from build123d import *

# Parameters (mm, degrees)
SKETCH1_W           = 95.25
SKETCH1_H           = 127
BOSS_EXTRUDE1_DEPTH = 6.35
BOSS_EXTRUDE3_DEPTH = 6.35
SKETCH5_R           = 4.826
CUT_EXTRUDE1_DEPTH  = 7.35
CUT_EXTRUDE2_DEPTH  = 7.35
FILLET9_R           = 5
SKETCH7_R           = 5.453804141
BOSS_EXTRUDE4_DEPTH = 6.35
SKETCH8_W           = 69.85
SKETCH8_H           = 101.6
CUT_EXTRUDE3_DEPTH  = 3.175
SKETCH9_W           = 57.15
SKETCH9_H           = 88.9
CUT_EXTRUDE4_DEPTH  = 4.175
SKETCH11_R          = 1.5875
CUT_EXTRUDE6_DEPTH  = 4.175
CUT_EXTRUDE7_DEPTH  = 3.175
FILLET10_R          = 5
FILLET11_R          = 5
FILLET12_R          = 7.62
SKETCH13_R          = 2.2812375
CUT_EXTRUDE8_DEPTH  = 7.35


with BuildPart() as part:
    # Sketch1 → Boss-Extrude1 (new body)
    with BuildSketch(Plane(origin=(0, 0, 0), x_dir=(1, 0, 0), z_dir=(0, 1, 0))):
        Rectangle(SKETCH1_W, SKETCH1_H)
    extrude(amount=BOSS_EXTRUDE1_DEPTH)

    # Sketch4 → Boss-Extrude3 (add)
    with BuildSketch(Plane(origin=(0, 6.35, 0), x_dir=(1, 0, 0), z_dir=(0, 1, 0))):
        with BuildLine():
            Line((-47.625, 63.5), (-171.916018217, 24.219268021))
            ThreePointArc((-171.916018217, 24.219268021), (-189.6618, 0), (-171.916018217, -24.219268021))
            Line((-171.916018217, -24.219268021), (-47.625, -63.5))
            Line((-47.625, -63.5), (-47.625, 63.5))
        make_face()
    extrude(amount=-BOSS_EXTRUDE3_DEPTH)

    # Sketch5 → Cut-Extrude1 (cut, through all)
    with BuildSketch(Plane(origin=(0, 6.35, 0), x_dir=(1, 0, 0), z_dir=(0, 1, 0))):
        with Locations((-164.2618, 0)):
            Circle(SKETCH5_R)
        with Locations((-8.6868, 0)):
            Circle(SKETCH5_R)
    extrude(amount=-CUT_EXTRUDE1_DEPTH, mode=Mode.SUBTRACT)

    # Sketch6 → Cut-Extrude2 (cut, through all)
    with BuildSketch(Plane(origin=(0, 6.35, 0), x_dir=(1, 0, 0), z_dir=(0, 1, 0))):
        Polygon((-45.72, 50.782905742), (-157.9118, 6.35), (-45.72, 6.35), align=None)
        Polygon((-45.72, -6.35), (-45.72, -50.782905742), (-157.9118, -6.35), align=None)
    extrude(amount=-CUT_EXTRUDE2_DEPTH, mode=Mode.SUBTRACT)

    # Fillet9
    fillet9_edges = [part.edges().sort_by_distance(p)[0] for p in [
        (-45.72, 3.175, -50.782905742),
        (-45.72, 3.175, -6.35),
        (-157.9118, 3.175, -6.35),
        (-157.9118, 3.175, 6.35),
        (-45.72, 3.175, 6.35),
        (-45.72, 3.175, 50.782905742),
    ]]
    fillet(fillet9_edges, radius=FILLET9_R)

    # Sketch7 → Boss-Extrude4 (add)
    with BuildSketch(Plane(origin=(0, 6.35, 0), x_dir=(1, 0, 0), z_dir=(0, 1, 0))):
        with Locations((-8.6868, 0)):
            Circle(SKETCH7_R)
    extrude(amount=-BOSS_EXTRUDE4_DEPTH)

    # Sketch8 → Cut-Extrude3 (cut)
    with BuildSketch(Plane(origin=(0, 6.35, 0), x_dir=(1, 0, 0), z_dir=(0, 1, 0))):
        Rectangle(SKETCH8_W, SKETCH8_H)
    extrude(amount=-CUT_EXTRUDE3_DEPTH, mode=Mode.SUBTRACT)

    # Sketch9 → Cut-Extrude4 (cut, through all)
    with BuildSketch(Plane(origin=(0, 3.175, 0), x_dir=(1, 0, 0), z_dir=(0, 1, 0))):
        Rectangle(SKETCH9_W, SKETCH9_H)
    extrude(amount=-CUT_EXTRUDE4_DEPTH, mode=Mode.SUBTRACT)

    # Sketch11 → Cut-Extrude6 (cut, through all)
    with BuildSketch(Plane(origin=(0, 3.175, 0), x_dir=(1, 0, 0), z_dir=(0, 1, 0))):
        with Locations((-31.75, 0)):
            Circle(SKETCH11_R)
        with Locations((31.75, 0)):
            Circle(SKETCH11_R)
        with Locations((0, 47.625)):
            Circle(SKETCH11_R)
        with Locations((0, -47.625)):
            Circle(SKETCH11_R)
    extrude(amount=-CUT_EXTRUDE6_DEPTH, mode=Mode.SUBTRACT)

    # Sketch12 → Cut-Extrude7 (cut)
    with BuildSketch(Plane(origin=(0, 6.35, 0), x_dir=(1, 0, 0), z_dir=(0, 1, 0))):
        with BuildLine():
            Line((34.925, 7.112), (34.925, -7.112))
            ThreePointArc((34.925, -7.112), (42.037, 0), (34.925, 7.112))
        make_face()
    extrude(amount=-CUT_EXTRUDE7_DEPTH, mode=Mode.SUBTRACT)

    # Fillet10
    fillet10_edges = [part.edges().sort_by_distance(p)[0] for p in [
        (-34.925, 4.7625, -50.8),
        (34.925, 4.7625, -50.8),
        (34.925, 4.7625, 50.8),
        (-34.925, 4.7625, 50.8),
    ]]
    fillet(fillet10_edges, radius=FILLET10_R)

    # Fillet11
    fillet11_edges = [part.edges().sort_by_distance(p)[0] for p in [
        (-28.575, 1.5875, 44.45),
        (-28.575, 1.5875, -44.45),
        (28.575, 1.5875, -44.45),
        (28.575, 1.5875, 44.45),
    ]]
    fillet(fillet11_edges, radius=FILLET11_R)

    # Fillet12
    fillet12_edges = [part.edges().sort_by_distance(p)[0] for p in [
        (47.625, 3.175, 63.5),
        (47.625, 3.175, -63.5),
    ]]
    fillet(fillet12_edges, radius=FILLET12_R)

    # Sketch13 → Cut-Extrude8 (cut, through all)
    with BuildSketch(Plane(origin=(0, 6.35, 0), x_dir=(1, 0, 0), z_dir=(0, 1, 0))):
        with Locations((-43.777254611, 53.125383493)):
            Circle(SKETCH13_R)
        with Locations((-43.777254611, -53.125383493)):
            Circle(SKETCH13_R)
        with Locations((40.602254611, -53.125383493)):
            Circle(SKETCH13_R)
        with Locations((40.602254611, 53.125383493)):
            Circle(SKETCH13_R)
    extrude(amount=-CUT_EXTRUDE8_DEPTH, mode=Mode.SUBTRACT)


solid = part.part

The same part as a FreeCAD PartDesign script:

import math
import FreeCAD as App
import Part
import Sketcher
Q = App.Units.Quantity


def edges_at(feature, points):
    """Names of the edges that pass closest to the given points."""
    edges = feature.Shape.Edges
    near = lambda p: min(range(len(edges)), key=lambda i: edges[i].distToShape(Part.Vertex(*p))[0])
    return sorted({f"Edge{near(p) + 1}" for p in points})

doc = App.newDocument("Part")
body = doc.addObject("PartDesign::Body", "Body")

sketch1 = doc.addObject("Sketcher::SketchObject", "Sketch")
body.addObject(sketch1)
sketch1.AttachmentSupport = (doc.XZ_Plane, [""])
sketch1.MapMode = "FlatFace"
sketch1.addGeometry([
    Part.LineSegment(App.Vector(-47.625, -63.5, 0), App.Vector(-47.625, 63.5, 0)),
    Part.LineSegment(App.Vector(-47.625, 63.5, 0), App.Vector(47.625, 63.5, 0)),
    Part.LineSegment(App.Vector(47.625, 63.5, 0), App.Vector(47.625, -63.5, 0)),
    Part.LineSegment(App.Vector(47.625, -63.5, 0), App.Vector(-47.625, -63.5, 0)),
], False)
sketch1.addConstraint([
    Sketcher.Constraint("Coincident", 0, 2, 1, 1),
    Sketcher.Constraint("Coincident", 1, 2, 2, 1),
    Sketcher.Constraint("Coincident", 2, 2, 3, 1),
    Sketcher.Constraint("Coincident", 3, 2, 0, 1),
    Sketcher.Constraint("Vertical", 0),
    Sketcher.Constraint("Horizontal", 1),
    Sketcher.Constraint("Vertical", 2),
    Sketcher.Constraint("Horizontal", 3),
    Sketcher.Constraint("Symmetric", 0, 2, 2, 2, -1, 1),
    Sketcher.Constraint("DistanceY", 0, 1, 0, 2, Q("5 in")),
    Sketcher.Constraint("DistanceX", 1, 1, 1, 2, Q("3.75 in")),
])
pad1 = doc.addObject("PartDesign::Pad", "Pad")
body.addObject(pad1)
pad1.Profile = sketch1
pad1.Length = Q("0.25 in")
pad1.Reversed = True

sketch2 = doc.addObject("Sketcher::SketchObject", "Sketch001")
body.addObject(sketch2)
sketch2.AttachmentSupport = (doc.XZ_Plane, [""])
sketch2.MapMode = "FlatFace"
sketch2.AttachmentOffset = App.Placement(App.Vector(0, 0, -0.25 * 25.4), App.Rotation())
sketch2.addGeometry([
    Part.LineSegment(App.Vector(-47.625, -63.5, 0), App.Vector(-171.916018, -24.219268, 0)),
    Part.ArcOfCircle(Part.Circle(App.Vector(-164.2618, 0, 0), App.Vector(0, 0, 1), 25.4), math.radians(107.538535), math.radians(252.461465)),
    Part.LineSegment(App.Vector(-171.916018, 24.219268, 0), App.Vector(-47.625, 63.5, 0)),
    Part.LineSegment(App.Vector(-47.625, 63.5, 0), App.Vector(-47.625, -63.5, 0)),
], False)
sketch2.addConstraint([
    Sketcher.Constraint("Tangent", 0, 2, 1, 2),
    Sketcher.Constraint("Tangent", 1, 1, 2, 1),
    Sketcher.Constraint("Coincident", 2, 2, 3, 1),
    Sketcher.Constraint("Coincident", 3, 2, 0, 1),
    Sketcher.Constraint("Vertical", 3),
    Sketcher.Constraint("Symmetric", 0, 2, 1, 1, -1),
    Sketcher.Constraint("Radius", 1, Q("1 in")),
    Sketcher.Constraint("DistanceY", 3, 2, 3, 1, Q("5 in")),
    Sketcher.Constraint("DistanceX", 1, 3, -1, 1, Q("6.467 in")),
    Sketcher.Constraint("DistanceX", 2, 2, -1, 1, Q("1.875 in")),
])
pad2 = doc.addObject("PartDesign::Pad", "Pad001")
body.addObject(pad2)
pad2.Profile = sketch2
pad2.Length = Q("0.25 in")

sketch3 = doc.addObject("Sketcher::SketchObject", "Sketch002")
body.addObject(sketch3)
sketch3.AttachmentSupport = (doc.XZ_Plane, [""])
sketch3.MapMode = "FlatFace"
sketch3.AttachmentOffset = App.Placement(App.Vector(0, 0, -0.25 * 25.4), App.Rotation())
sketch3.addGeometry([
    Part.Circle(App.Vector(-164.2618, 0, 0), App.Vector(0, 0, 1), 4.826),
    Part.Circle(App.Vector(-8.6868, 0, 0), App.Vector(0, 0, 1), 4.826),
], False)
sketch3.addConstraint([
    Sketcher.Constraint("Equal", 0, 1),
    Sketcher.Constraint("PointOnObject", 0, 3, -1),
    Sketcher.Constraint("PointOnObject", 1, 3, -1),
    Sketcher.Constraint("Diameter", 0, Q("0.38 in")),
    Sketcher.Constraint("DistanceX", 0, 3, -1, 1, Q("6.467 in")),
    Sketcher.Constraint("DistanceX", 1, 3, -1, 1, Q("0.342 in")),
])
pocket1 = doc.addObject("PartDesign::Pocket", "Pocket")
body.addObject(pocket1)
pocket1.Profile = sketch3
pocket1.Type = "ThroughAll"
pocket1.Reversed = True

sketch4 = doc.addObject("Sketcher::SketchObject", "Sketch003")
body.addObject(sketch4)
sketch4.AttachmentSupport = (doc.XZ_Plane, [""])
sketch4.MapMode = "FlatFace"
sketch4.AttachmentOffset = App.Placement(App.Vector(0, 0, -0.25 * 25.4), App.Rotation())
sketch4.addGeometry([
    Part.LineSegment(App.Vector(-45.72, -50.782906, 0), App.Vector(-157.9118, -6.35, 0)),
    Part.LineSegment(App.Vector(-157.9118, -6.35, 0), App.Vector(-45.72, -6.35, 0)),
    Part.LineSegment(App.Vector(-45.72, -6.35, 0), App.Vector(-45.72, -50.782906, 0)),
    Part.LineSegment(App.Vector(-45.72, 50.782906, 0), App.Vector(-45.72, 6.35, 0)),
    Part.LineSegment(App.Vector(-45.72, 6.35, 0), App.Vector(-157.9118, 6.35, 0)),
    Part.LineSegment(App.Vector(-157.9118, 6.35, 0), App.Vector(-45.72, 50.782906, 0)),
], False)
sketch4.addConstraint([
    Sketcher.Constraint("Coincident", 0, 2, 1, 1),
    Sketcher.Constraint("Coincident", 1, 2, 2, 1),
    Sketcher.Constraint("Coincident", 2, 2, 0, 1),
    Sketcher.Constraint("Coincident", 3, 2, 4, 1),
    Sketcher.Constraint("Coincident", 4, 2, 5, 1),
    Sketcher.Constraint("Coincident", 5, 2, 3, 1),
    Sketcher.Constraint("Horizontal", 1),
    Sketcher.Constraint("Vertical", 2),
    Sketcher.Constraint("Vertical", 3),
    Sketcher.Constraint("Horizontal", 4),
    Sketcher.Constraint("Symmetric", 1, 2, 3, 2, -1),
    Sketcher.Constraint("Vertical", 0, 2, 4, 2),
    Sketcher.Constraint("Equal", 2, 3),
    Sketcher.Constraint("DistanceX", 1, 2, -1, 1, Q("1.8 in")),
    Sketcher.Constraint("DistanceY", 1, 2, 3, 2, Q("0.5 in")),
    Sketcher.Constraint("DistanceX", 1, 1, 1, 2, Q("4.417 in")),
    Sketcher.Constraint("Distance", 0, Q("120.670142 mm")),
])
pocket2 = doc.addObject("PartDesign::Pocket", "Pocket001")
body.addObject(pocket2)
pocket2.Profile = sketch4
pocket2.Type = "ThroughAll"
pocket2.Reversed = True
doc.recompute()

fillet = doc.addObject("PartDesign::Fillet", "Fillet")
body.addObject(fillet)
fillet.Base = (pocket2, edges_at(pocket2, [
    (-45.72, 3.175, -50.783),
    (-45.72, 3.175, -6.35),
    (-157.912, 3.175, -6.35),
    (-157.912, 3.175, 6.35),
    (-45.72, 3.175, 6.35),
    (-45.72, 3.175, 50.783),
]))
fillet.Radius = 5

sketch5 = doc.addObject("Sketcher::SketchObject", "Sketch004")
body.addObject(sketch5)
sketch5.AttachmentSupport = (doc.XZ_Plane, [""])
sketch5.MapMode = "FlatFace"
sketch5.AttachmentOffset = App.Placement(App.Vector(0, 0, -0.25 * 25.4), App.Rotation())
sketch5.addGeometry(Part.Circle(App.Vector(-8.6868, 0, 0), App.Vector(0, 0, 1), 5.453804), False)
sketch5.addConstraint([
    Sketcher.Constraint("PointOnObject", 0, 3, -1),
    Sketcher.Constraint("Diameter", 0, Q("10.907608 mm")),
    Sketcher.Constraint("DistanceX", 0, 3, -1, 1, Q("0.342 in")),
])
pad3 = doc.addObject("PartDesign::Pad", "Pad002")
body.addObject(pad3)
pad3.Profile = sketch5
pad3.Length = Q("0.25 in")

sketch6 = doc.addObject("Sketcher::SketchObject", "Sketch005")
body.addObject(sketch6)
sketch6.AttachmentSupport = (doc.XZ_Plane, [""])
sketch6.MapMode = "FlatFace"
sketch6.AttachmentOffset = App.Placement(App.Vector(0, 0, -0.25 * 25.4), App.Rotation())
sketch6.addGeometry([
    Part.LineSegment(App.Vector(-34.925, -50.8, 0), App.Vector(-34.925, 50.8, 0)),
    Part.LineSegment(App.Vector(-34.925, 50.8, 0), App.Vector(34.925, 50.8, 0)),
    Part.LineSegment(App.Vector(34.925, 50.8, 0), App.Vector(34.925, -50.8, 0)),
    Part.LineSegment(App.Vector(34.925, -50.8, 0), App.Vector(-34.925, -50.8, 0)),
], False)
sketch6.addConstraint([
    Sketcher.Constraint("Coincident", 0, 2, 1, 1),
    Sketcher.Constraint("Coincident", 1, 2, 2, 1),
    Sketcher.Constraint("Coincident", 2, 2, 3, 1),
    Sketcher.Constraint("Coincident", 3, 2, 0, 1),
    Sketcher.Constraint("Vertical", 0),
    Sketcher.Constraint("Horizontal", 1),
    Sketcher.Constraint("Vertical", 2),
    Sketcher.Constraint("Horizontal", 3),
    Sketcher.Constraint("Symmetric", 0, 2, 2, 2, -1, 1),
    Sketcher.Constraint("DistanceY", 0, 1, 0, 2, Q("4 in")),
    Sketcher.Constraint("DistanceX", 1, 1, 1, 2, Q("2.75 in")),
])
pocket3 = doc.addObject("PartDesign::Pocket", "Pocket002")
body.addObject(pocket3)
pocket3.Profile = sketch6
pocket3.Length = Q("0.125 in")
pocket3.Reversed = True

sketch7 = doc.addObject("Sketcher::SketchObject", "Sketch006")
body.addObject(sketch7)
sketch7.AttachmentSupport = (doc.XZ_Plane, [""])
sketch7.MapMode = "FlatFace"
sketch7.AttachmentOffset = App.Placement(App.Vector(0, 0, -0.125 * 25.4), App.Rotation())
sketch7.addGeometry([
    Part.LineSegment(App.Vector(-28.575, -44.45, 0), App.Vector(-28.575, 44.45, 0)),
    Part.LineSegment(App.Vector(-28.575, 44.45, 0), App.Vector(28.575, 44.45, 0)),
    Part.LineSegment(App.Vector(28.575, 44.45, 0), App.Vector(28.575, -44.45, 0)),
    Part.LineSegment(App.Vector(28.575, -44.45, 0), App.Vector(-28.575, -44.45, 0)),
], False)
sketch7.addConstraint([
    Sketcher.Constraint("Coincident", 0, 2, 1, 1),
    Sketcher.Constraint("Coincident", 1, 2, 2, 1),
    Sketcher.Constraint("Coincident", 2, 2, 3, 1),
    Sketcher.Constraint("Coincident", 3, 2, 0, 1),
    Sketcher.Constraint("Vertical", 0),
    Sketcher.Constraint("Horizontal", 1),
    Sketcher.Constraint("Vertical", 2),
    Sketcher.Constraint("Horizontal", 3),
    Sketcher.Constraint("Symmetric", 0, 2, 2, 2, -1, 1),
    Sketcher.Constraint("DistanceY", 0, 1, 0, 2, Q("3.5 in")),
    Sketcher.Constraint("DistanceX", 1, 1, 1, 2, Q("2.25 in")),
])
pocket4 = doc.addObject("PartDesign::Pocket", "Pocket003")
body.addObject(pocket4)
pocket4.Profile = sketch7
pocket4.Type = "ThroughAll"
pocket4.Reversed = True

sketch8 = doc.addObject("Sketcher::SketchObject", "Sketch007")
body.addObject(sketch8)
sketch8.AttachmentSupport = (doc.XZ_Plane, [""])
sketch8.MapMode = "FlatFace"
sketch8.AttachmentOffset = App.Placement(App.Vector(0, 0, -0.125 * 25.4), App.Rotation())
sketch8.addGeometry([
    Part.Circle(App.Vector(-31.75, 0, 0), App.Vector(0, 0, 1), 1.5875),
    Part.Circle(App.Vector(31.75, 0, 0), App.Vector(0, 0, 1), 1.5875),
    Part.Circle(App.Vector(0, -47.625, 0), App.Vector(0, 0, 1), 1.5875),
    Part.Circle(App.Vector(0, 47.625, 0), App.Vector(0, 0, 1), 1.5875),
], False)
sketch8.addConstraint([
    Sketcher.Constraint("Equal", 0, 1),
    Sketcher.Constraint("Equal", 1, 2),
    Sketcher.Constraint("Equal", 2, 3),
    Sketcher.Constraint("Symmetric", 0, 3, 1, 3, -1, 1),
    Sketcher.Constraint("Symmetric", 2, 3, 3, 3, -1, 1),
    Sketcher.Constraint("PointOnObject", 0, 3, -1),
    Sketcher.Constraint("PointOnObject", 2, 3, -2),
    Sketcher.Constraint("Diameter", 0, Q("0.125 in")),
    Sketcher.Constraint("DistanceX", 0, 3, 1, 3, Q("2.5 in")),
    Sketcher.Constraint("DistanceY", 2, 3, 3, 3, Q("3.75 in")),
])
pocket5 = doc.addObject("PartDesign::Pocket", "Pocket004")
body.addObject(pocket5)
pocket5.Profile = sketch8
pocket5.Type = "ThroughAll"
pocket5.Reversed = True

sketch9 = doc.addObject("Sketcher::SketchObject", "Sketch008")
body.addObject(sketch9)
sketch9.AttachmentSupport = (doc.XZ_Plane, [""])
sketch9.MapMode = "FlatFace"
sketch9.AttachmentOffset = App.Placement(App.Vector(0, 0, -0.25 * 25.4), App.Rotation())
sketch9.addGeometry([
    Part.LineSegment(App.Vector(34.925, -7.112, 0), App.Vector(34.925, 7.112, 0)),
    Part.ArcOfCircle(Part.Circle(App.Vector(34.925, 0, 0), App.Vector(0, 0, 1), 7.112), math.radians(-90), math.radians(90)),
], False)
sketch9.addConstraint([
    Sketcher.Constraint("Coincident", 0, 1, 1, 1),
    Sketcher.Constraint("Coincident", 1, 2, 0, 2),
    Sketcher.Constraint("Vertical", 0),
    Sketcher.Constraint("PointOnObject", 1, 3, -1),
    Sketcher.Constraint("Vertical", 1, 3, 0, 1),
    Sketcher.Constraint("Radius", 1, Q("0.28 in")),
    Sketcher.Constraint("DistanceX", -1, 1, 1, 3, Q("1.375 in")),
])
pocket6 = doc.addObject("PartDesign::Pocket", "Pocket005")
body.addObject(pocket6)
pocket6.Profile = sketch9
pocket6.Length = Q("0.125 in")
pocket6.Reversed = True
doc.recompute()

fillet2 = doc.addObject("PartDesign::Fillet", "Fillet001")
body.addObject(fillet2)
fillet2.Base = (pocket6, edges_at(pocket6, [
    (-34.925, 4.763, -50.8),
    (34.925, 4.763, -50.8),
    (34.925, 4.763, 50.8),
    (-34.925, 4.763, 50.8),
]))
fillet2.Radius = 5
doc.recompute()

fillet3 = doc.addObject("PartDesign::Fillet", "Fillet002")
body.addObject(fillet3)
fillet3.Base = (fillet2, edges_at(fillet2, [
    (-28.575, 1.587, 44.45),
    (-28.575, 1.587, -44.45),
    (28.575, 1.587, -44.45),
    (28.575, 1.587, 44.45),
]))
fillet3.Radius = 5
doc.recompute()

fillet4 = doc.addObject("PartDesign::Fillet", "Fillet003")
body.addObject(fillet4)
fillet4.Base = (fillet3, edges_at(fillet3, [(47.625, 3.175, 63.5), (47.625, 3.175, -63.5)]))
fillet4.Radius = Q("0.3 in")

sketch10 = doc.addObject("Sketcher::SketchObject", "Sketch009")
body.addObject(sketch10)
sketch10.AttachmentSupport = (doc.XZ_Plane, [""])
sketch10.MapMode = "FlatFace"
sketch10.AttachmentOffset = App.Placement(App.Vector(0, 0, -0.25 * 25.4), App.Rotation())
sketch10.addGeometry([
    Part.Circle(App.Vector(-43.777255, -53.125383, 0), App.Vector(0, 0, 1), 2.281238),
    Part.Circle(App.Vector(-43.777255, 53.125383, 0), App.Vector(0, 0, 1), 2.281238),
    Part.Circle(App.Vector(40.602255, 53.125383, 0), App.Vector(0, 0, 1), 2.281238),
    Part.Circle(App.Vector(40.602255, -53.125383, 0), App.Vector(0, 0, 1), 2.281238),
], False)
sketch10.addConstraint([
    Sketcher.Constraint("Equal", 0, 1),
    Sketcher.Constraint("Equal", 1, 2),
    Sketcher.Constraint("Equal", 2, 3),
    Sketcher.Constraint("Symmetric", 0, 3, 1, 3, -1),
    Sketcher.Constraint("Symmetric", 2, 3, 3, 3, -1),
    Sketcher.Constraint("Horizontal", 1, 3, 2, 3),
    Sketcher.Constraint("Diameter", 0, Q("4.562475 mm")),
    Sketcher.Constraint("DistanceX", 1, 3, 2, 3, Q("84.379509 mm")),
    Sketcher.Constraint("DistanceX", 0, 3, -1, 1, Q("43.777255 mm")),
    Sketcher.Constraint("DistanceY", 0, 3, -1, 1, Q("53.125383 mm")),
])
pocket7 = doc.addObject("PartDesign::Pocket", "Pocket006")
body.addObject(pocket7)
pocket7.Profile = sketch10
pocket7.Type = "ThroughAll"
pocket7.Reversed = True

doc.recompute()
